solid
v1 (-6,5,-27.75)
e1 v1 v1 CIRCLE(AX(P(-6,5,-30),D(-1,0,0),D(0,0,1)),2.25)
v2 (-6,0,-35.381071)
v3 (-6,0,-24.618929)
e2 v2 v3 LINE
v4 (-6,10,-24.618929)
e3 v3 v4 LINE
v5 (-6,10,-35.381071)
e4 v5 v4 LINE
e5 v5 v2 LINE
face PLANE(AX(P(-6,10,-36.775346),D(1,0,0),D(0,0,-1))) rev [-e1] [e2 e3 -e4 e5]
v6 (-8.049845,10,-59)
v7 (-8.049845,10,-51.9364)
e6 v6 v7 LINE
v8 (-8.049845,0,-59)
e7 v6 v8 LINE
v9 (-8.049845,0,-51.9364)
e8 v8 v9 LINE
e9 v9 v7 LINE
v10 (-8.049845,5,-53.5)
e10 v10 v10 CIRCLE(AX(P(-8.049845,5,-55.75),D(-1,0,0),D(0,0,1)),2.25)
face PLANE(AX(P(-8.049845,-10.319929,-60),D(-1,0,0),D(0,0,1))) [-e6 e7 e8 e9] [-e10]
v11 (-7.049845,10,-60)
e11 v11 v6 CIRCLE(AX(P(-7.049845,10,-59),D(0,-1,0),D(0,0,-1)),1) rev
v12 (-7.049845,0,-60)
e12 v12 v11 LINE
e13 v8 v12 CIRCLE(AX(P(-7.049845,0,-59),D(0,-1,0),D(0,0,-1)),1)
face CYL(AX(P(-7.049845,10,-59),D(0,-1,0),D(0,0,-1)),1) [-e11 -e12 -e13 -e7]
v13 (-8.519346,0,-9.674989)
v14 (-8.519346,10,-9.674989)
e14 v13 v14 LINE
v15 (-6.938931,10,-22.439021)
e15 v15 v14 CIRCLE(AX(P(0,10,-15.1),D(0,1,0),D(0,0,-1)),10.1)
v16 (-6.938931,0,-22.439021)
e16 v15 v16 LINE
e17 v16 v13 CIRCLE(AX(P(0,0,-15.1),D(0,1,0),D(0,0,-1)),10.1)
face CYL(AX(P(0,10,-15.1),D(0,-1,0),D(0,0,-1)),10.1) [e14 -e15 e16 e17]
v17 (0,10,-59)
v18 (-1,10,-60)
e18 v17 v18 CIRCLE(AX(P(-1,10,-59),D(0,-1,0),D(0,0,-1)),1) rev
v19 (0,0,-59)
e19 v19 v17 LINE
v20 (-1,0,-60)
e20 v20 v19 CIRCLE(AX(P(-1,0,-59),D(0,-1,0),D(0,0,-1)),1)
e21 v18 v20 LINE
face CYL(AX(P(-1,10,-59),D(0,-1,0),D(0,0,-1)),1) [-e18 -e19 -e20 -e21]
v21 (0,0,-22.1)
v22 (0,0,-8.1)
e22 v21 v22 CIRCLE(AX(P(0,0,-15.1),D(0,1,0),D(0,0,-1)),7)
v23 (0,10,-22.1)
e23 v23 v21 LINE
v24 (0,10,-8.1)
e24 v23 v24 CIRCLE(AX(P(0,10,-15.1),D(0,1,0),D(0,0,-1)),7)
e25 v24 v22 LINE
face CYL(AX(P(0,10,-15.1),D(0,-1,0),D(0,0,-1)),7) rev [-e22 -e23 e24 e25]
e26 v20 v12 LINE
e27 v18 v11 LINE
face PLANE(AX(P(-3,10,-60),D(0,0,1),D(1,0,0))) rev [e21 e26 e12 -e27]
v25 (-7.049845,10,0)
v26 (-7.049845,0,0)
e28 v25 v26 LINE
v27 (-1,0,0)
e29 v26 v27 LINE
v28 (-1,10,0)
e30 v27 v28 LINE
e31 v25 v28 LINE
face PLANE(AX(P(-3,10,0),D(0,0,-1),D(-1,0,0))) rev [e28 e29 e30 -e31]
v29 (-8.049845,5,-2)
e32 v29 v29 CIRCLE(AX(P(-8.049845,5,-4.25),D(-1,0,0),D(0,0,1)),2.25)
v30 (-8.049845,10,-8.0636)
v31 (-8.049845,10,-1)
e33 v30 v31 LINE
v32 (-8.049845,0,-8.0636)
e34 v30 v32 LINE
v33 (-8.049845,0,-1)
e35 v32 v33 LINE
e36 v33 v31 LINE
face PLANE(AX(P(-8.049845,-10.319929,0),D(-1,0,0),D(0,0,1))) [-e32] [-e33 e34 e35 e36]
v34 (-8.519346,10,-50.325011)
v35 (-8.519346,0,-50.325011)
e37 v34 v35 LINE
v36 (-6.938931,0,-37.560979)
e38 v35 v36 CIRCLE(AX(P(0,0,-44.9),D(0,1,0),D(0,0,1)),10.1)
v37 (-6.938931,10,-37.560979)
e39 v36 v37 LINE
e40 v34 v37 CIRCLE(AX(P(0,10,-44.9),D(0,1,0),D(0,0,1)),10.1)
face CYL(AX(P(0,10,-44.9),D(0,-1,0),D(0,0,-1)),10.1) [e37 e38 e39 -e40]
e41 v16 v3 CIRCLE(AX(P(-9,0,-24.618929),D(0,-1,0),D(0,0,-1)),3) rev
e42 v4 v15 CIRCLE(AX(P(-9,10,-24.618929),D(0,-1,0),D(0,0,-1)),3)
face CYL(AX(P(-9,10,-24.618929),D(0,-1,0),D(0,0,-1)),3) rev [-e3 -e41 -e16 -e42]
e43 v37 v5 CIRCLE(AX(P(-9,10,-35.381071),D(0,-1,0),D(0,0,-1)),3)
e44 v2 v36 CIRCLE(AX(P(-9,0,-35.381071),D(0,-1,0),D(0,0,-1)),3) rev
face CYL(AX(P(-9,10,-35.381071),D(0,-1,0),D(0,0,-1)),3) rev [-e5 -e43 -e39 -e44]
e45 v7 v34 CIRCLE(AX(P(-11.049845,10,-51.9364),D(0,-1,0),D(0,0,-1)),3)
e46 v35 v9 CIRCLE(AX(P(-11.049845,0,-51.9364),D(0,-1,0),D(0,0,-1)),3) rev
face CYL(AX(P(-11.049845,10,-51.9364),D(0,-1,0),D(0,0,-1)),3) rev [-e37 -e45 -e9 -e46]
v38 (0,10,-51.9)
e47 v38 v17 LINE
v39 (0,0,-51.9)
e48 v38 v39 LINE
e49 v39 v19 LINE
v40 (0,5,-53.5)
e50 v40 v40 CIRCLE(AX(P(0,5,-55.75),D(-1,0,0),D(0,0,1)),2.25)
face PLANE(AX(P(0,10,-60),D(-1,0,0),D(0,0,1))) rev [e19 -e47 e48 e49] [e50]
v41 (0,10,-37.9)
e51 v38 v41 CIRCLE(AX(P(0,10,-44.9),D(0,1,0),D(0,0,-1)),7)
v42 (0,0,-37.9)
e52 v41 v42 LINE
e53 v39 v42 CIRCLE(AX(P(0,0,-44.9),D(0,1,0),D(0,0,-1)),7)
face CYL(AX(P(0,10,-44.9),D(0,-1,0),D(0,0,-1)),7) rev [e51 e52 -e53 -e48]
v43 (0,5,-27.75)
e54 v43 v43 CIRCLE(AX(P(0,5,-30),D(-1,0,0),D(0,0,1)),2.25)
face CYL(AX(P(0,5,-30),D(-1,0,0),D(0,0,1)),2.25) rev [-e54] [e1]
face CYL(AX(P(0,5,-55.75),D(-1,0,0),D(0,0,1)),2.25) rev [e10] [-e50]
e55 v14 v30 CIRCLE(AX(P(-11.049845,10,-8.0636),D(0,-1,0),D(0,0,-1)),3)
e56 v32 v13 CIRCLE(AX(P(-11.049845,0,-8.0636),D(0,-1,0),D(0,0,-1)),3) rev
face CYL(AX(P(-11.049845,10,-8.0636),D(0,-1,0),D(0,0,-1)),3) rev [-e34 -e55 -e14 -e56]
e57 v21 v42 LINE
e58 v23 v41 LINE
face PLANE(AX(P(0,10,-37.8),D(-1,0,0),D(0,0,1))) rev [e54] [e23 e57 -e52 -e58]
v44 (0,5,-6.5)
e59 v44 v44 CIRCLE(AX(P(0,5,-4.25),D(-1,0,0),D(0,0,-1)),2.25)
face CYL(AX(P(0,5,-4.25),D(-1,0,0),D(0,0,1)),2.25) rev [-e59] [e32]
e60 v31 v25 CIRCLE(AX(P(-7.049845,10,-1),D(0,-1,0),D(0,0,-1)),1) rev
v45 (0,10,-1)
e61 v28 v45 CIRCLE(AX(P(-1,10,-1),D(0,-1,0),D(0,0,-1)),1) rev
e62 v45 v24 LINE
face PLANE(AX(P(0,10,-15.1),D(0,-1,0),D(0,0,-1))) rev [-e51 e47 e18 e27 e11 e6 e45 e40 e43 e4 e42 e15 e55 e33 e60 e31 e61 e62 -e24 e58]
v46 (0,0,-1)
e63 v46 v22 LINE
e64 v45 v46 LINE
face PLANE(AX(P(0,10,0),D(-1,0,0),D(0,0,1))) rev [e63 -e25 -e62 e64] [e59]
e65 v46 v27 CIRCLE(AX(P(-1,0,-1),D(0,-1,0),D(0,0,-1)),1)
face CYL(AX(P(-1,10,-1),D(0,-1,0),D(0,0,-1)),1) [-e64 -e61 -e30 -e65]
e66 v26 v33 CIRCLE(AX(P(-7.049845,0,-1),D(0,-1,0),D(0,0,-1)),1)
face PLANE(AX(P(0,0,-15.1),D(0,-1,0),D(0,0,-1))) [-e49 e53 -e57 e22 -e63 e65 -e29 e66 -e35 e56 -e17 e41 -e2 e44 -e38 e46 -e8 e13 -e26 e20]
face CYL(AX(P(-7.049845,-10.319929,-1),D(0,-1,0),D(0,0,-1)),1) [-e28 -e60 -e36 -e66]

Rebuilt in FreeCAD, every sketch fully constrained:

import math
import FreeCAD as App
import Part
import Sketcher

V = App.Vector


def edges_at(feature, points):
    """Names of the edges that pass closest to the given points."""
    edges = feature.Shape.Edges
    near = lambda p: min(range(len(edges)), key=lambda i: edges[i].distToShape(Part.Vertex(*p))[0])
    return sorted({f"Edge{near(p) + 1}" for p in points})

doc = App.newDocument("Part")
params = doc.addObject("Spreadsheet::Sheet", "Params")
for row, (alias, value) in enumerate([
    ("sketch1_radius", "7.1 mm"),
    ("sketch1_radius2", "10.1 mm"),
    ("sketch1_width", "3 mm"),
    ("sketch1_height", "8 mm"),
    ("sketch1_height2", "15.6 mm"),
    ("pad1_length", "10 mm"),
    ("sketch2_radius", "10.1 mm"),
    ("sketch2_height", "9 mm"),
    ("pad2_length", "10 mm"),
    ("sketch3_diameter", "4.5 mm"),
    ("sketch4_radius", "10.1 mm"),
    ("pad3_length", "10 mm"),
    ("sketch5_diameter", "4.5 mm"),
    ("fillet_radius", "3 mm"),
    ("fillet2_radius", "1 mm"),
    ("sketch6_radius", "7 mm"),
    ("sketch6_radius2", "7.1 mm"),
    ("fillet3_radius", "1 mm"),
], start=1):
    params.set(f"A{row}", alias)
    params.set(f"B{row}", "=" + value)
    params.setAlias(f"B{row}", alias)

body = doc.addObject("PartDesign::Body", "Body")

# Sketch on XZ plane
sketch1 = body.newObject("Sketcher::SketchObject", "Sketch")
sketch1.AttachmentSupport = (doc.getObject("XZ_Plane"), [""])
sketch1.MapMode = "FlatFace"
sketch1.addGeometry(Part.LineSegment(V(0, 0, 0), V(0, -8, 0)), False)
sketch1.addGeometry(Part.ArcOfCircle(Part.Circle(V(0, -15.1, 0), V(0, 0, 1), 7.1), math.radians(90), math.radians(270)), False)
sketch1.addGeometry(Part.LineSegment(V(0, -22.2, 0), V(0, -37.8, 0)), False)
sketch1.addGeometry(Part.ArcOfCircle(Part.Circle(V(0, -44.9, 0), V(0, 0, 1), 7.1), math.radians(90), math.radians(270)), False)
sketch1.addGeometry(Part.LineSegment(V(0, -52, 0), V(0, -60, 0)), False)
sketch1.addGeometry(Part.LineSegment(V(0, -60, 0), V(-3, -60, 0)), False)
sketch1.addGeometry(Part.LineSegment(V(-3, -60, 0), V(-3, -54.5, 0)), False)
sketch1.addGeometry(Part.ArcOfCircle(Part.Circle(V(0, -44.9, 0), V(0, 0, 1), 10.1), math.radians(107), math.radians(253)), False)
sketch1.addGeometry(Part.LineSegment(V(-3, -35.3, 0), V(-3, -24.7, 0)), False)
sketch1.addGeometry(Part.ArcOfCircle(Part.Circle(V(0, -15.1, 0), V(0, 0, 1), 10.1), math.radians(107), math.radians(253)), False)
sketch1.addGeometry(Part.LineSegment(V(-3, -5.5, 0), V(-3, 0, 0)), False)
sketch1.addGeometry(Part.LineSegment(V(-3, 0, 0), V(0, 0, 0)), False)
sketch1.addConstraint(Sketcher.Constraint("Coincident", 0, 2, 1, 1))
sketch1.addConstraint(Sketcher.Constraint("Coincident", 1, 2, 2, 1))
sketch1.addConstraint(Sketcher.Constraint("Coincident", 2, 2, 3, 1))
sketch1.addConstraint(Sketcher.Constraint("Coincident", 3, 2, 4, 1))
sketch1.addConstraint(Sketcher.Constraint("Coincident", 4, 2, 5, 1))
sketch1.addConstraint(Sketcher.Constraint("Coincident", 5, 2, 6, 1))
sketch1.addConstraint(Sketcher.Constraint("Coincident", 6, 2, 7, 2))
sketch1.addConstraint(Sketcher.Constraint("Coincident", 7, 1, 8, 1))
sketch1.addConstraint(Sketcher.Constraint("Coincident", 8, 2, 9, 2))
sketch1.addConstraint(Sketcher.Constraint("Coincident", 9, 1, 10, 1))
sketch1.addConstraint(Sketcher.Constraint("Coincident", 10, 2, 11, 1))
sketch1.addConstraint(Sketcher.Constraint("Coincident", 11, 2, 0, 1))
sketch1.addConstraint(Sketcher.Constraint("Vertical", 0))
sketch1.addConstraint(Sketcher.Constraint("Vertical", 2))
sketch1.addConstraint(Sketcher.Constraint("Vertical", 4))
sketch1.addConstraint(Sketcher.Constraint("Horizontal", 5))
sketch1.addConstraint(Sketcher.Constraint("Vertical", 6))
sketch1.addConstraint(Sketcher.Constraint("Vertical", 8))
sketch1.addConstraint(Sketcher.Constraint("Vertical", 10))
sketch1.addConstraint(Sketcher.Constraint("Horizontal", 11))
sketch1.addConstraint(Sketcher.Constraint("Coincident", 11, 2, -1, 1))
sketch1.addConstraint(Sketcher.Constraint("Coincident", 7, 3, 3, 3))
sketch1.addConstraint(Sketcher.Constraint("Coincident", 9, 3, 1, 3))
sketch1.addConstraint(Sketcher.Constraint("Equal", 1, 3))
sketch1.addConstraint(Sketcher.Constraint("Equal", 7, 9))
sketch1.addConstraint(Sketcher.Constraint("PointOnObject", 1, 3, -2))
sketch1.addConstraint(Sketcher.Constraint("PointOnObject", 3, 3, -2))
sketch1.addConstraint(Sketcher.Constraint("PointOnObject", 1, 2, -2))
sketch1.addConstraint(Sketcher.Constraint("PointOnObject", 3, 2, -2))
sketch1.addConstraint(Sketcher.Constraint("Vertical", 6, 2, 7, 1))
sketch1.addConstraint(Sketcher.Constraint("Vertical", 8, 2, 9, 1))
sketch1.addConstraint(Sketcher.Constraint("Equal", 0, 4))
sketch1.addConstraint(Sketcher.Constraint("Radius", 1, 7.1))
sketch1.addConstraint(Sketcher.Constraint("Radius", 7, 10.1))
sketch1.addConstraint(Sketcher.Constraint("DistanceX", 5, 2, 5, 1, 3.0))
sketch1.addConstraint(Sketcher.Constraint("DistanceY", 0, 2, 0, 1, 8.0))
sketch1.addConstraint(Sketcher.Constraint("DistanceY", 2, 2, 2, 1, 15.6))
sketch1.setExpression("Constraints[32]", "Params.sketch1_radius")
sketch1.setExpression("Constraints[33]", "Params.sketch1_radius2")
sketch1.setExpression("Constraints[34]", "Params.sketch1_width")
sketch1.setExpression("Constraints[35]", "Params.sketch1_height")
sketch1.setExpression("Constraints[36]", "Params.sketch1_height2")
pad1 = body.newObject("PartDesign::Pad", "Pad")
pad1.Profile = sketch1
pad1.setExpression("Length", "Params.pad1_length")
pad1.Reversed = True

# Sketch on XZ plane
sketch2 = body.newObject("Sketcher::SketchObject", "Sketch001")
sketch2.AttachmentSupport = (doc.getObject("XZ_Plane"), [""])
sketch2.MapMode = "FlatFace"
sketch2.AttachmentOffset = App.Placement(V(0, 0, -10), App.Rotation())
sketch2.addGeometry(Part.LineSegment(V(-3, -60, 0), V(-8, -60, 0)), False)
sketch2.addGeometry(Part.LineSegment(V(-8, -60, 0), V(-8, -51, 0)), False)
sketch2.addGeometry(Part.ArcOfCircle(Part.Circle(V(0, -45, 0), V(0, 0, 1), 10), math.radians(-143), math.radians(-107)), False)
sketch2.addGeometry(Part.LineSegment(V(-3, -55, 0), V(-3, -60, 0)), False)
sketch2.addGeometry(Part.LineSegment(V(-3, 0, 0), V(-3, -5, 0)), False)
sketch2.addGeometry(Part.ArcOfCircle(Part.Circle(V(0, -15, 0), V(0, 0, 1), 10), math.radians(107), math.radians(143)), False)
sketch2.addGeometry(Part.LineSegment(V(-8, -9, 0), V(-8, 0, 0)), False)
sketch2.addGeometry(Part.LineSegment(V(-8, 0, 0), V(-3, 0, 0)), False)
sketch2.addConstraint(Sketcher.Constraint("Coincident", 0, 2, 1, 1))
sketch2.addConstraint(Sketcher.Constraint("Coincident", 1, 2, 2, 1))
sketch2.addConstraint(Sketcher.Constraint("Coincident", 2, 2, 3, 1))
sketch2.addConstraint(Sketcher.Constraint("Coincident", 3, 2, 0, 1))
sketch2.addConstraint(Sketcher.Constraint("Coincident", 4, 2, 5, 1))
sketch2.addConstraint(Sketcher.Constraint("Coincident", 5, 2, 6, 1))
sketch2.addConstraint(Sketcher.Constraint("Coincident", 6, 2, 7, 1))
sketch2.addConstraint(Sketcher.Constraint("Coincident", 7, 2, 4, 1))
sketch2.addConstraint(Sketcher.Constraint("Horizontal", 0))
sketch2.addConstraint(Sketcher.Constraint("Vertical", 1))
sketch2.addConstraint(Sketcher.Constraint("Vertical", 3))
sketch2.addConstraint(Sketcher.Constraint("Vertical", 4))
sketch2.addConstraint(Sketcher.Constraint("Vertical", 6))
sketch2.addConstraint(Sketcher.Constraint("Horizontal", 7))
sketch2.addConstraint(Sketcher.Constraint("Equal", 2, 5))
sketch2.addConstraint(Sketcher.Constraint("PointOnObject", 2, 3, -2))
sketch2.addConstraint(Sketcher.Constraint("PointOnObject", 5, 3, -2))
sketch2.addConstraint(Sketcher.Constraint("PointOnObject", 6, 2, -1))
sketch2.addConstraint(Sketcher.Constraint("Vertical", 3, 2, 4, 2))
sketch2.addConstraint(Sketcher.Constraint("Vertical", 1, 2, 5, 2))
sketch2.addConstraint(Sketcher.Constraint("Equal", 3, 4))
sketch2.addConstraint(Sketcher.Constraint("Radius", 2, 10.1))
sketch2.addConstraint(Sketcher.Constraint("DistanceY", 1, 1, 1, 2, 9.0))
sketch2.addConstraint(Sketcher.Constraint("DistanceY", 0, 2, -1, 1, 60.0))
sketch2.addConstraint(Sketcher.Constraint("DistanceX", 2, 2, -1, 1, 3.0))
sketch2.addConstraint(Sketcher.Constraint("DistanceY", 2, 3, -1, 1, 44.9))
sketch2.setExpression("Constraints[21]", "Params.sketch2_radius")
sketch2.setExpression("Constraints[22]", "Params.sketch2_height")
pad2 = body.newObject("PartDesign::Pad", "Pad001")
pad2.Profile = sketch2
pad2.setExpression("Length", "Params.pad2_length")

# Sketch on YZ plane
sketch3 = body.newObject("Sketcher::SketchObject", "Sketch002")
sketch3.AttachmentSupport = (doc.getObject("YZ_Plane"), [""])
sketch3.MapMode = "FlatFace"
sketch3.AttachmentOffset = App.Placement(V(0, 0, -3), App.Rotation())
sketch3.addGeometry(Part.Circle(V(5, -55.8, 0), V(0, 0, 1), 2.2), False)
sketch3.addGeometry(Part.Circle(V(5, -4.2, 0), V(0, 0, 1), 2.2), False)
sketch3.addConstraint(Sketcher.Constraint("Equal", 0, 1))
sketch3.addConstraint(Sketcher.Constraint("Vertical", 0, 3, 1, 3))
sketch3.addConstraint(Sketcher.Constraint("Diameter", 0, 4.5))
sketch3.addConstraint(Sketcher.Constraint("DistanceX", -1, 1, 0, 3, 5.0))
sketch3.addConstraint(Sketcher.Constraint("DistanceY", 0, 3, 1, 3, 51.5))
sketch3.addConstraint(Sketcher.Constraint("DistanceY", 0, 3, -1, 1, 55.75))
sketch3.setExpression("Constraints[2]", "Params.sketch3_diameter")
pocket1 = body.newObject("PartDesign::Pocket", "Pocket")
pocket1.Profile = sketch3
pocket1.Type = "ThroughAll"
pocket1.Midplane = True

# Sketch on XZ plane
sketch4 = body.newObject("Sketcher::SketchObject", "Sketch003")
sketch4.AttachmentSupport = (doc.getObject("XZ_Plane"), [""])
sketch4.MapMode = "FlatFace"
sketch4.addGeometry(Part.LineSegment(V(-6, -36.8, 0), V(-6, -23.2, 0)), False)
sketch4.addGeometry(Part.ArcOfCircle(Part.Circle(V(0, -15.1, 0), V(0, 0, 1), 10.1), math.radians(-126.45), math.radians(-107.28)), False)
sketch4.addGeometry(Part.LineSegment(V(-3, -24.7, 0), V(-3, -35.3, 0)), False)
sketch4.addGeometry(Part.ArcOfCircle(Part.Circle(V(0, -44.9, 0), V(0, 0, 1), 10.1), math.radians(107.28), math.radians(126.45)), False)
sketch4.addConstraint(Sketcher.Constraint("Coincident", 0, 2, 1, 1))
sketch4.addConstraint(Sketcher.Constraint("Coincident", 1, 2, 2, 1))
sketch4.addConstraint(Sketcher.Constraint("Coincident", 2, 2, 3, 1))
sketch4.addConstraint(Sketcher.Constraint("Coincident", 3, 2, 0, 1))
sketch4.addConstraint(Sketcher.Constraint("Vertical", 0))
sketch4.addConstraint(Sketcher.Constraint("Vertical", 2))
sketch4.addConstraint(Sketcher.Constraint("Equal", 1, 3))
sketch4.addConstraint(Sketcher.Constraint("PointOnObject", 1, 3, -2))
sketch4.addConstraint(Sketcher.Constraint("PointOnObject", 3, 3, -2))
sketch4.addConstraint(Sketcher.Constraint("Radius", 1, 10.1))
sketch4.addConstraint(Sketcher.Constraint("DistanceX", 0, 2, -1, 1, 6.0))
sketch4.addConstraint(Sketcher.Constraint("DistanceX", 1, 2, -1, 1, 3.0))
sketch4.addConstraint(Sketcher.Constraint("DistanceY", 1, 3, -1, 1, 15.1))
sketch4.addConstraint(Sketcher.Constraint("DistanceY", 3, 3, -1, 1, 44.9))
sketch4.setExpression("Constraints[9]", "Params.sketch4_radius")
pad3 = body.newObject("PartDesign::Pad", "Pad002")
pad3.Profile = sketch4
pad3.setExpression("Length", "Params.pad3_length")
pad3.Reversed = True

# Sketch on YZ plane
sketch5 = body.newObject("Sketcher::SketchObject", "Sketch004")
sketch5.AttachmentSupport = (doc.getObject("YZ_Plane"), [""])
sketch5.MapMode = "FlatFace"
sketch5.AttachmentOffset = App.Placement(V(0, 0, -6), App.Rotation())
sketch5.addGeometry(Part.Circle(V(5, -30, 0), V(0, 0, 1), 2.2), False)
sketch5.addConstraint(Sketcher.Constraint("Diameter", 0, 4.5))
sketch5.addConstraint(Sketcher.Constraint("DistanceX", -1, 1, 0, 3, 5.0))
sketch5.addConstraint(Sketcher.Constraint("DistanceY", 0, 3, -1, 1, 30.0))
sketch5.setExpression("Constraints[0]", "Params.sketch5_diameter")
pocket2 = body.newObject("PartDesign::Pocket", "Pocket001")
pocket2.Profile = sketch5
pocket2.Type = "ThroughAll"
pocket2.Reversed = True
doc.recompute()

fillet = body.newObject("PartDesign::Fillet", "Fillet")
fillet.Base = (pocket2, edges_at(pocket2, [
    (-8.05, 5, -51),
    (-8.05, 5, -9),
    (-6, 5, -36.775),
    (-6, 5, -23.225),
]))
fillet.setExpression("Radius", "Params.fillet_radius")
doc.recompute()

fillet2 = body.newObject("PartDesign::Fillet", "Fillet001")
fillet2.Base = (fillet, edges_at(fillet, [(-8.05, 5, -60), (-8.05, 5, 0)]))
fillet2.setExpression("Radius", "Params.fillet2_radius")

# Sketch on XZ plane
sketch6 = body.newObject("Sketcher::SketchObject", "Sketch005")
sketch6.AttachmentSupport = (doc.getObject("XZ_Plane"), [""])
sketch6.MapMode = "FlatFace"
sketch6.addGeometry(Part.LineSegment(V(0, -8.1, 0), V(0, -8, 0)), False)
sketch6.addGeometry(Part.ArcOfCircle(Part.Circle(V(0, -15.1, 0), V(0, 0, 1), 7.1), math.radians(90), math.radians(270)), False)
sketch6.addGeometry(Part.LineSegment(V(0, -22.2, 0), V(0, -22.1, 0)), False)
sketch6.addGeometry(Part.ArcOfCircle(Part.Circle(V(0, -15.1, 0), V(0, 0, 1), 7), math.radians(90), math.radians(270)), False)
sketch6.addGeometry(Part.LineSegment(V(0, -52, 0), V(0, -51.9, 0)), False)
sketch6.addGeometry(Part.ArcOfCircle(Part.Circle(V(0, -44.9, 0), V(0, 0, 1), 7), math.radians(90), math.radians(270)), False)
sketch6.addGeometry(Part.LineSegment(V(0, -37.9, 0), V(0, -37.8, 0)), False)
sketch6.addGeometry(Part.ArcOfCircle(Part.Circle(V(0, -44.9, 0), V(0, 0, 1), 7.1), math.radians(90), math.radians(270)), False)
sketch6.addConstraint(Sketcher.Constraint("Coincident", 0, 2, 1, 1))
sketch6.addConstraint(Sketcher.Constraint("Coincident", 1, 2, 2, 1))
sketch6.addConstraint(Sketcher.Constraint("Coincident", 2, 2, 3, 2))
sketch6.addConstraint(Sketcher.Constraint("Coincident", 3, 1, 0, 1))
sketch6.addConstraint(Sketcher.Constraint("Coincident", 4, 2, 5, 2))
sketch6.addConstraint(Sketcher.Constraint("Coincident", 5, 1, 6, 1))
sketch6.addConstraint(Sketcher.Constraint("Coincident", 6, 2, 7, 1))
sketch6.addConstraint(Sketcher.Constraint("Coincident", 7, 2, 4, 1))
sketch6.addConstraint(Sketcher.Constraint("Vertical", 0))
sketch6.addConstraint(Sketcher.Constraint("Vertical", 2))
sketch6.addConstraint(Sketcher.Constraint("Vertical", 4))
sketch6.addConstraint(Sketcher.Constraint("Vertical", 6))
sketch6.addConstraint(Sketcher.Constraint("Coincident", 3, 3, 1, 3))
sketch6.addConstraint(Sketcher.Constraint("Coincident", 7, 3, 5, 3))
sketch6.addConstraint(Sketcher.Constraint("Equal", 3, 5))
sketch6.addConstraint(Sketcher.Constraint("Equal", 1, 7))
sketch6.addConstraint(Sketcher.Constraint("PointOnObject", 1, 3, -2))
sketch6.addConstraint(Sketcher.Constraint("PointOnObject", 5, 3, -2))
sketch6.addConstraint(Sketcher.Constraint("PointOnObject", 0, 2, -2))
sketch6.addConstraint(Sketcher.Constraint("PointOnObject", 1, 2, -2))
sketch6.addConstraint(Sketcher.Constraint("PointOnObject", 4, 2, -2))
sketch6.addConstraint(Sketcher.Constraint("PointOnObject", 5, 1, -2))
sketch6.addConstraint(Sketcher.Constraint("Radius", 3, 7.0))
sketch6.addConstraint(Sketcher.Constraint("Radius", 1, 7.1))
sketch6.addConstraint(Sketcher.Constraint("DistanceY", 0, 2, -1, 1, 8.0))
sketch6.addConstraint(Sketcher.Constraint("DistanceY", 7, 2, -1, 1, 52.0))
sketch6.setExpression("Constraints[22]", "Params.sketch6_radius")
sketch6.setExpression("Constraints[23]", "Params.sketch6_radius2")
pad4 = body.newObject("PartDesign::Pad", "Pad003")
pad4.Profile = sketch6
pad4.Type = "UpToLast"
pad4.Reversed = True
doc.recompute()

fillet3 = body.newObject("PartDesign::Fillet", "Fillet002")
fillet3.Base = (pad4, edges_at(pad4, [(0, 5, -60), (0, 5, 0)]))
fillet3.setExpression("Radius", "Params.fillet3_radius")

doc.recompute()
